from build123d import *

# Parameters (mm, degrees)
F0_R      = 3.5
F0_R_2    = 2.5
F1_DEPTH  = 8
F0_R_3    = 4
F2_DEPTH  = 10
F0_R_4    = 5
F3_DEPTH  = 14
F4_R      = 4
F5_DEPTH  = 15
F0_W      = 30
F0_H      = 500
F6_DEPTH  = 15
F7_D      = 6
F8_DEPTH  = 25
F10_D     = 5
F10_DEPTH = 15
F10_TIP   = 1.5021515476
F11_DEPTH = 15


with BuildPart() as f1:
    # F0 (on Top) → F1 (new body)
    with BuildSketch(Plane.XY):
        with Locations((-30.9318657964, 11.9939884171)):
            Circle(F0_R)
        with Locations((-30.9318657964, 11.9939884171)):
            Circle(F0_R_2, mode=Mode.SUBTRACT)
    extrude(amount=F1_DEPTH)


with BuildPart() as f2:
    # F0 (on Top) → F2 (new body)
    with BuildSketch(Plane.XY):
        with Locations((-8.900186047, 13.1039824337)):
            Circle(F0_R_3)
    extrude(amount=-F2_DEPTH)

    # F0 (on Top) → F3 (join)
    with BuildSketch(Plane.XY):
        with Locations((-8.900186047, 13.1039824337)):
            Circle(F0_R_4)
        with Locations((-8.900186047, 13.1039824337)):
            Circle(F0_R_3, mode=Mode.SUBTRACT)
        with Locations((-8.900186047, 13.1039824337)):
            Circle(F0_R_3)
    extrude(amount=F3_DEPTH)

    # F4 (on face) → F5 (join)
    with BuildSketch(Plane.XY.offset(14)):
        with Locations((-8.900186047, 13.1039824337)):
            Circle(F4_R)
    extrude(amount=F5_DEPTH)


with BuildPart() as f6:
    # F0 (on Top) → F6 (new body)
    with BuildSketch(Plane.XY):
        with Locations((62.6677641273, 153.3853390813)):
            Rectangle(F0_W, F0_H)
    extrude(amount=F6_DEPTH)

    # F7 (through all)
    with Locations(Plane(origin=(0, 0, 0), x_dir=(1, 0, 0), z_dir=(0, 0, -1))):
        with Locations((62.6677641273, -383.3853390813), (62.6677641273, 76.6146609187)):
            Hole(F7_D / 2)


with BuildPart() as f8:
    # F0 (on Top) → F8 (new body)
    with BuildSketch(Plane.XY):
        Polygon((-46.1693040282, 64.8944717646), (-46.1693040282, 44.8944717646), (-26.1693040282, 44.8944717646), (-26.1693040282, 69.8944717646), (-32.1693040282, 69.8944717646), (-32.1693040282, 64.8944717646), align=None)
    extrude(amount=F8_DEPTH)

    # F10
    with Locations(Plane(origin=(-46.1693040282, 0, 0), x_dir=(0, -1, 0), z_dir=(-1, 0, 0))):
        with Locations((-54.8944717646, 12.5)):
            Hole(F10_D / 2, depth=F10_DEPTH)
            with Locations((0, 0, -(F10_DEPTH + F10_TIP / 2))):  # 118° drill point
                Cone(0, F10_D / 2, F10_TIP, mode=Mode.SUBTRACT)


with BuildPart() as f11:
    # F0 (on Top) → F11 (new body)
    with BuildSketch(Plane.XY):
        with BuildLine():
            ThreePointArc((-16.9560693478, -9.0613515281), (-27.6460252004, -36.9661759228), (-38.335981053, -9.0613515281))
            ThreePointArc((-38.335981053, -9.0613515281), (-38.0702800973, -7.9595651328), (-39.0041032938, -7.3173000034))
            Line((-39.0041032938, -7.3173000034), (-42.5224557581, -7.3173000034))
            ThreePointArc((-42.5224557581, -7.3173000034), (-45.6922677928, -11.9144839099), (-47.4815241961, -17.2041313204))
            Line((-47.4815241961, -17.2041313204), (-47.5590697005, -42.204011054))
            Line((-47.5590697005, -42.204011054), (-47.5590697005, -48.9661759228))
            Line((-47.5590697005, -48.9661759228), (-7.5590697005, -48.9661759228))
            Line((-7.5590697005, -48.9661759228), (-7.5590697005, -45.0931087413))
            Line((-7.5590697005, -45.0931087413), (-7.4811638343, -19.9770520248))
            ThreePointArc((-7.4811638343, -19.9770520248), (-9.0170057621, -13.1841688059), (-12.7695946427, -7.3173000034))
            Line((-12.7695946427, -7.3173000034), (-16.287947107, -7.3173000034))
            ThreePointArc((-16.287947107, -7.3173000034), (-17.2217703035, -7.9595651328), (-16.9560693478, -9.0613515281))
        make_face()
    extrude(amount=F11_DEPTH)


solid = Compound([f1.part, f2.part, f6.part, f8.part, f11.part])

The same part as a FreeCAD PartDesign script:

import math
import FreeCAD as App
import Part
import Sketcher

V = App.Vector
Q = App.Units.Quantity


def add_polygon(sketch, points):
    """Adds a closed chain of lines whose ends are joined by coincident constraints."""
    first, n = sketch.GeometryCount, len(points)
    for a, b in zip(points, points[1:] + points[:1]):
        sketch.addGeometry(Part.LineSegment(App.Vector(*a, 0), App.Vector(*b, 0)), False)
    for i in range(n):
        sketch.addConstraint(Sketcher.Constraint("Coincident", first + i, 2, first + (i + 1) % n, 1))

doc = App.newDocument("Part")
body = doc.addObject("PartDesign::Body", "Body")

sketch1 = doc.addObject("Sketcher::SketchObject", "Sketch")
body.addObject(sketch1)
sketch1.AttachmentSupport = (doc.XY_Plane, [""])
sketch1.MapMode = "FlatFace"
sketch1.addGeometry([
    Part.Circle(V(-30.931866, 11.993988, 0), V(0, 0, 1), 3.5),
    Part.Circle(V(-30.931866, 11.993988, 0), V(0, 0, 1), 2.5),
], False)
sketch1.addConstraint([
    Sketcher.Constraint("Coincident", 1, 3, 0, 3),
    Sketcher.Constraint("Diameter", 0, Q("7 mm")),
    Sketcher.Constraint("Diameter", 1, Q("5 mm")),
    Sketcher.Constraint("DistanceY", -1, 1, 0, 3, Q("11.993988 mm")),
    Sketcher.Constraint("DistanceX", 0, 3, -1, 1, Q("30.931866 mm")),
])
pad1 = doc.addObject("PartDesign::Pad", "Pad")
body.addObject(pad1)
pad1.Profile = sketch1
pad1.Length = 8
body2 = doc.addObject("PartDesign::Body", "Body001")

sketch2 = doc.addObject("Sketcher::SketchObject", "Sketch001")
body2.addObject(sketch2)
sketch2.AttachmentSupport = (doc.getObject("XY_Plane001"), [""])
sketch2.MapMode = "FlatFace"
sketch2.addGeometry(Part.Circle(V(-8.900186, 13.103982, 0), V(0, 0, 1), 4), False)
sketch2.addConstraint([
    Sketcher.Constraint("Diameter", 0, Q("8 mm")),
    Sketcher.Constraint("DistanceX", 0, 3, -1, 1, Q("8.900186 mm")),
    Sketcher.Constraint("DistanceY", -1, 1, 0, 3, Q("13.103982 mm")),
])
pad2 = doc.addObject("PartDesign::Pad", "Pad001")
body2.addObject(pad2)
pad2.Profile = sketch2
pad2.Length = 10
pad2.Reversed = True

sketch3 = doc.addObject("Sketcher::SketchObject", "Sketch002")
body2.addObject(sketch3)
sketch3.AttachmentSupport = (doc.getObject("XY_Plane001"), [""])
sketch3.MapMode = "FlatFace"
sketch3.addGeometry(Part.Circle(V(-8.900186, 13.103982, 0), V(0, 0, 1), 5), False)
sketch3.addConstraint([
    Sketcher.Constraint("Diameter", 0, Q("10 mm")),
    Sketcher.Constraint("DistanceX", 0, 3, -1, 1, Q("8.900186 mm")),
    Sketcher.Constraint("DistanceY", -1, 1, 0, 3, Q("13.103982 mm")),
])
pad3 = doc.addObject("PartDesign::Pad", "Pad002")
body2.addObject(pad3)
pad3.Profile = sketch3
pad3.Length = 14

sketch4 = doc.addObject("Sketcher::SketchObject", "Sketch003")
body2.addObject(sketch4)
sketch4.AttachmentSupport = (doc.getObject("XY_Plane001"), [""])
sketch4.MapMode = "FlatFace"
sketch4.AttachmentOffset = App.Placement(V(0, 0, 14), App.Rotation())
sketch4.addGeometry(Part.Circle(V(-8.900186, 13.103982, 0), V(0, 0, 1), 4), False)
sketch4.addConstraint([
    Sketcher.Constraint("Diameter", 0, Q("8 mm")),
    Sketcher.Constraint("DistanceX", 0, 3, -1, 1, Q("8.900186 mm")),
    Sketcher.Constraint("DistanceY", -1, 1, 0, 3, Q("13.103982 mm")),
])
pad4 = doc.addObject("PartDesign::Pad", "Pad003")
body2.addObject(pad4)
pad4.Profile = sketch4
pad4.Length = 15
body3 = doc.addObject("PartDesign::Body", "Body002")

sketch5 = doc.addObject("Sketcher::SketchObject", "Sketch004")
body3.addObject(sketch5)
sketch5.AttachmentSupport = (doc.getObject("XY_Plane002"), [""])
sketch5.MapMode = "FlatFace"
add_polygon(sketch5, [(47.667764, 403.385339), (47.667764, -96.614661), (77.667764, -96.614661), (77.667764, 403.385339)])
sketch5.addConstraint([
    Sketcher.Constraint("Vertical", 0),
    Sketcher.Constraint("Horizontal", 1),
    Sketcher.Constraint("Vertical", 2),
    Sketcher.Constraint("Horizontal", 3),
    Sketcher.Constraint("DistanceX", 1, 1, 1, 2, Q("30 mm")),
    Sketcher.Constraint("DistanceY", 0, 2, 0, 1, Q("500 mm")),
    Sketcher.Constraint("DistanceY", 0, 2, -1, 1, Q("96.614661 mm")),
    Sketcher.Constraint("DistanceX", -1, 1, 0, 2, Q("47.667764 mm")),
])
pad5 = doc.addObject("PartDesign::Pad", "Pad004")
body3.addObject(pad5)
pad5.Profile = sketch5
pad5.Length = 15

sketch6 = doc.addObject("Sketcher::SketchObject", "Sketch005")
body3.addObject(sketch6)
sketch6.AttachmentSupport = (doc.getObject("XY_Plane002"), [""])
sketch6.MapMode = "FlatFace"
sketch6.addGeometry([
    Part.Circle(V(62.667764, 383.385339, 0), V(0, 0, 1), 3),
    Part.Circle(V(62.667764, -76.614661, 0), V(0, 0, 1), 3),
], False)
sketch6.addConstraint([
    Sketcher.Constraint("Equal", 0, 1),
    Sketcher.Constraint("Vertical", 0, 3, 1, 3),
    Sketcher.Constraint("Diameter", 0, Q("6 mm")),
    Sketcher.Constraint("DistanceY", 1, 3, 0, 3, Q("460 mm")),
    Sketcher.Constraint("DistanceY", -1, 1, 0, 3, Q("383.385339 mm")),
    Sketcher.Constraint("DistanceX", -1, 1, 0, 3, Q("62.667764 mm")),
])
doc.recompute()
hole = doc.addObject("PartDesign::Hole", "Hole")
body3.addObject(hole)
hole.Profile = sketch6
hole.ThreadType = "None"
hole.Diameter = 6
hole.DepthType = "ThroughAll"
hole.Reversed = True
body4 = doc.addObject("PartDesign::Body", "Body003")

sketch7 = doc.addObject("Sketcher::SketchObject", "Sketch006")
body4.addObject(sketch7)
sketch7.AttachmentSupport = (doc.getObject("XY_Plane003"), [""])
sketch7.MapMode = "FlatFace"
add_polygon(sketch7, [(-46.169304, 64.894472), (-46.169304, 44.894472), (-26.169304, 44.894472), (-26.169304, 69.894472), (-32.169304, 69.894472), (-32.169304, 64.894472)])
sketch7.addConstraint([
    Sketcher.Constraint("Vertical", 0),
    Sketcher.Constraint("Horizontal", 1),
    Sketcher.Constraint("Vertical", 2),
    Sketcher.Constraint("Horizontal", 3),
    Sketcher.Constraint("Vertical", 4),
    Sketcher.Constraint("Horizontal", 5),
    Sketcher.Constraint("Equal", 1, 0),
    Sketcher.Constraint("DistanceX", 1, 1, 1, 2, Q("20 mm")),
    Sketcher.Constraint("DistanceX", 3, 2, 3, 1, Q("6 mm")),
    Sketcher.Constraint("DistanceY", 2, 1, 2, 2, Q("25 mm")),
    Sketcher.Constraint("DistanceY", -1, 1, 0, 2, Q("44.894472 mm")),
    Sketcher.Constraint("DistanceX", 0, 2, -1, 1, Q("46.169304 mm")),
])
pad6 = doc.addObject("PartDesign::Pad", "Pad005")
body4.addObject(pad6)
pad6.Profile = sketch7
pad6.Length = 25

sketch8 = doc.addObject("Sketcher::SketchObject", "Sketch007")
body4.addObject(sketch8)
sketch8.AttachmentSupport = (doc.getObject("YZ_Plane003"), [""])
sketch8.MapMode = "FlatFace"
sketch8.AttachmentOffset = App.Placement(V(0, 0, -46.169304), App.Rotation())
sketch8.addGeometry(Part.Circle(V(54.894472, 12.5, 0), V(0, 0, 1), 2.5), False)
sketch8.addConstraint([
    Sketcher.Constraint("Diameter", 0, Q("5 mm")),
    Sketcher.Constraint("DistanceY", -1, 1, 0, 3, Q("12.5 mm")),
    Sketcher.Constraint("DistanceX", -1, 1, 0, 3, Q("54.894472 mm")),
])
doc.recompute()
hole2 = doc.addObject("PartDesign::Hole", "Hole001")
body4.addObject(hole2)
hole2.Profile = sketch8
hole2.ThreadType = "None"
hole2.Diameter = 5
hole2.DepthType = "Dimension"
hole2.Depth = 15
hole2.DrillPoint = "Angled"
hole2.DrillPointAngle = 118
hole2.Reversed = True
body5 = doc.addObject("PartDesign::Body", "Body004")

sketch9 = doc.addObject("Sketcher::SketchObject", "Sketch008")
body5.addObject(sketch9)
sketch9.AttachmentSupport = (doc.getObject("XY_Plane004"), [""])
sketch9.MapMode = "FlatFace"
sketch9.addGeometry([
    Part.ArcOfCircle(Part.Circle(V(-27.646025, -20.966176, 0), V(0, 0, 1), 16), math.radians(131.922303), math.radians(408.077697)),
    Part.ArcOfCircle(Part.Circle(V(-39.004103, -8.3173, 0), V(0, 0, 1), 1), math.radians(-48.077697), math.radians(90)),
    Part.LineSegment(V(-39.004103, -7.3173, 0), V(-42.522456, -7.3173, 0)),
    Part.ArcOfCircle(Part.Circle(V(-27.646025, -20.966176, 0), V(0, 0, 1), 20.189106), math.radians(137.464139), math.radians(169.260714)),
    Part.LineSegment(V(-47.481524, -17.204131, 0), V(-47.55907, -42.204011, 0)),
    Part.LineSegment(V(-47.55907, -42.204011, 0), V(-47.55907, -48.966176, 0)),
    Part.LineSegment(V(-47.55907, -48.966176, 0), V(-7.55907, -48.966176, 0)),
    Part.LineSegment(V(-7.55907, -48.966176, 0), V(-7.55907, -45.093109, 0)),
    Part.LineSegment(V(-7.55907, -45.093109, 0), V(-7.481164, -19.977052, 0)),
    Part.ArcOfCircle(Part.Circle(V(-27.646025, -20.966176, 0), V(0, 0, 1), 20.189106), math.radians(2.808214), math.radians(42.535861)),
    Part.LineSegment(V(-12.769595, -7.3173, 0), V(-16.287947, -7.3173, 0)),
    Part.ArcOfCircle(Part.Circle(V(-16.287947, -8.3173, 0), V(0, 0, 1), 1), math.radians(90), math.radians(228.077697)),
], False)
sketch9.addConstraint([
    Sketcher.Constraint("Coincident", 0, 1, 1, 1),
    Sketcher.Constraint("Coincident", 1, 2, 2, 1),
    Sketcher.Constraint("Coincident", 2, 2, 3, 1),
    Sketcher.Constraint("Coincident", 3, 2, 4, 1),
    Sketcher.Constraint("Coincident", 4, 2, 5, 1),
    Sketcher.Constraint("Coincident", 5, 2, 6, 1),
    Sketcher.Constraint("Coincident", 6, 2, 7, 1),
    Sketcher.Constraint("Coincident", 7, 2, 8, 1),
    Sketcher.Constraint("Coincident", 8, 2, 9, 1),
    Sketcher.Constraint("Coincident", 9, 2, 10, 1),
    Sketcher.Constraint("Coincident", 10, 2, 11, 1),
    Sketcher.Constraint("Coincident", 11, 2, 0, 2),
    Sketcher.Constraint("Horizontal", 2),
    Sketcher.Constraint("Vertical", 5),
    Sketcher.Constraint("Horizontal", 6),
    Sketcher.Constraint("Vertical", 7),
    Sketcher.Constraint("Horizontal", 10),
    Sketcher.Constraint("Coincident", 3, 3, 0, 3),
    Sketcher.Constraint("Coincident", 9, 3, 0, 3),
    Sketcher.Constraint("Radius", 0, Q("16 mm")),
    Sketcher.Constraint("Radius", 1, Q("1 mm")),
    Sketcher.Constraint("Radius", 11, Q("1 mm")),
    Sketcher.Constraint("DistanceX", 6, 1, 6, 2, Q("40 mm")),
    Sketcher.Constraint("Distance", 4, Q("25 mm")),
    Sketcher.Constraint("DistanceY", 5, 2, 9, 3, Q("28 mm")),
    Sketcher.Constraint("Radius", 3, Q("20.189106 mm")),
    Sketcher.Constraint("Radius", 9, Q("20.189106 mm")),
    Sketcher.Constraint("DistanceY", 1, 3, -1, 1, Q("8.3173 mm")),
    Sketcher.Constraint("DistanceY", 11, 3, -1, 1, Q("8.3173 mm")),
    Sketcher.Constraint("DistanceX", 3, 2, 9, 3, Q("19.835499 mm")),
    Sketcher.Constraint("DistanceY", 8, 2, 11, 2, Q("10.9157 mm")),
    Sketcher.Constraint("DistanceX", 2, 2, 2, 1, Q("3.518352 mm")),
    Sketcher.Constraint("DistanceX", 10, 2, 10, 1, Q("3.518352 mm")),
    Sketcher.Constraint("DistanceY", 7, 1, 7, 2, Q("3.873067 mm")),
    Sketcher.Constraint("DistanceX", 0, 1, -1, 1, Q("38.335981 mm")),
    Sketcher.Constraint("DistanceY", 0, 1, -1, 1, Q("9.061352 mm")),
    Sketcher.Constraint("DistanceY", 3, 2, -1, 1, Q("17.204131 mm")),
    Sketcher.Constraint("DistanceX", 4, 2, -1, 1, Q("47.55907 mm")),
    Sketcher.Constraint("DistanceX", 11, 2, -1, 1, Q("16.956069 mm")),
])
pad7 = doc.addObject("PartDesign::Pad", "Pad006")
body5.addObject(pad7)
pad7.Profile = sketch9
pad7.Length = 15

doc.recompute()
